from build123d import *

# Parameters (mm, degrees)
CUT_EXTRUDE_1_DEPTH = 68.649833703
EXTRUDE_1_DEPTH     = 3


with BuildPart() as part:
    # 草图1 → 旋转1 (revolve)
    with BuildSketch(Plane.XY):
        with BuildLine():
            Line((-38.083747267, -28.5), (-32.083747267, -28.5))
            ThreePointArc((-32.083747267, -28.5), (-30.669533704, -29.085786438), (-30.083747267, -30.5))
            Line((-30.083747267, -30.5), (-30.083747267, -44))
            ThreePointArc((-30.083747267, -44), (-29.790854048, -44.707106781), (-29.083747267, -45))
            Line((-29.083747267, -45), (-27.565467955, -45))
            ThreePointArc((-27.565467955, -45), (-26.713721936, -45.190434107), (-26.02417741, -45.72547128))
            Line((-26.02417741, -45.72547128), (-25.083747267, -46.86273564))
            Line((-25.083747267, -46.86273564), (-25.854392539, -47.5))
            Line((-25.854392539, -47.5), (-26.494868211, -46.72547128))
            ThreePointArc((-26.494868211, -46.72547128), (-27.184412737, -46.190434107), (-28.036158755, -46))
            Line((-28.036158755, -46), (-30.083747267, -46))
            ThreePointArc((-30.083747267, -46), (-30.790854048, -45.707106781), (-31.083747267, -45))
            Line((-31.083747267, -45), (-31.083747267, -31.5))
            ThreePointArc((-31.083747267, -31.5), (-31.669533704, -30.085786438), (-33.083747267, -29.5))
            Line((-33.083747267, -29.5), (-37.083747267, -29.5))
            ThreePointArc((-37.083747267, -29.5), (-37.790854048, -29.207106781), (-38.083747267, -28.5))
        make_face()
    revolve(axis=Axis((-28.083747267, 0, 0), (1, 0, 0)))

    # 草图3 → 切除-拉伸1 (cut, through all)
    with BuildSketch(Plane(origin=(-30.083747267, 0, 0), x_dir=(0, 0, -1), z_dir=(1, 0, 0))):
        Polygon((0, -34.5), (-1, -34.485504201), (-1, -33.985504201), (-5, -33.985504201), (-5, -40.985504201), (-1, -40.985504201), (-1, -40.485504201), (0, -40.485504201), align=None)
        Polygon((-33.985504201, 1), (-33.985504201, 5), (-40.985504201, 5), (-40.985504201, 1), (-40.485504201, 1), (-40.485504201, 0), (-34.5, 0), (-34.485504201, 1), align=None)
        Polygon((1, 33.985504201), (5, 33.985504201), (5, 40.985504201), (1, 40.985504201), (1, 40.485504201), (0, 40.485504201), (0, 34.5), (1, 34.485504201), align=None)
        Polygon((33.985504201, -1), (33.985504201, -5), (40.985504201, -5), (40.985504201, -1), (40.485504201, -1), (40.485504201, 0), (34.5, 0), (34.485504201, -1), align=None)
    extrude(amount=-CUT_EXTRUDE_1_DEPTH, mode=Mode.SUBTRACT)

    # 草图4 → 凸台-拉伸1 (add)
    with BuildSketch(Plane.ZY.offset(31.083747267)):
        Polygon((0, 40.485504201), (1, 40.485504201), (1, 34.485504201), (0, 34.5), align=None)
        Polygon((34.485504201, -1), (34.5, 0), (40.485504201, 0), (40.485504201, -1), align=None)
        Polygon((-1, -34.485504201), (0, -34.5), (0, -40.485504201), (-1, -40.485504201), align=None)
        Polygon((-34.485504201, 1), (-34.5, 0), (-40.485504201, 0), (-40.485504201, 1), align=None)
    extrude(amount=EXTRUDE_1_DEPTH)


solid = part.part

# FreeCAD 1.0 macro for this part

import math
import FreeCAD as App
import Part
import Sketcher

V = App.Vector
Q = App.Units.Quantity


def add_polygon(sketch, points):
    """Adds a closed chain of lines whose ends are joined by coincident constraints."""
    first, n = sketch.GeometryCount, len(points)
    for a, b in zip(points, points[1:] + points[:1]):
        sketch.addGeometry(Part.LineSegment(App.Vector(*a, 0), App.Vector(*b, 0)), False)
    for i in range(n):
        sketch.addConstraint(Sketcher.Constraint("Coincident", first + i, 2, first + (i + 1) % n, 1))

doc = App.newDocument("Part")
body = doc.addObject("PartDesign::Body", "Body")

sketch1 = body.newObject("Sketcher::SketchObject", "Sketch")
sketch1.AttachmentSupport = (doc.getObject("XY_Plane"), [""])
sketch1.MapMode = "FlatFace"
sketch1.addGeometry(Part.LineSegment(V(-32.083747, -28.5, 0), V(-38.083747, -28.5, 0)), False)
sketch1.addGeometry(Part.ArcOfCircle(Part.Circle(V(-37.083747, -28.5, 0), V(0, 0, 1), 1), math.radians(-180), math.radians(-90)), False)
sketch1.addGeometry(Part.LineSegment(V(-37.083747, -29.5, 0), V(-33.083747, -29.5, 0)), False)
sketch1.addGeometry(Part.ArcOfCircle(Part.Circle(V(-33.083747, -31.5, 0), V(0, 0, 1), 2), math.radians(0), math.radians(90)), False)
sketch1.addGeometry(Part.LineSegment(V(-31.083747, -31.5, 0), V(-31.083747, -45, 0)), False)
sketch1.addGeometry(Part.ArcOfCircle(Part.Circle(V(-30.083747, -45, 0), V(0, 0, 1), 1), math.radians(-180), math.radians(-90)), False)
sketch1.addGeometry(Part.LineSegment(V(-30.083747, -46, 0), V(-28.036159, -46, 0)), False)
sketch1.addGeometry(Part.ArcOfCircle(Part.Circle(V(-28.036159, -48, 0), V(0, 0, 1), 2), math.radians(39.588131), math.radians(90)), False)
sketch1.addGeometry(Part.LineSegment(V(-26.494868, -46.725471, 0), V(-25.854393, -47.5, 0)), False)
sketch1.addGeometry(Part.LineSegment(V(-25.854393, -47.5, 0), V(-25.083747, -46.862736, 0)), False)
sketch1.addGeometry(Part.LineSegment(V(-25.083747, -46.862736, 0), V(-26.024177, -45.725471, 0)), False)
sketch1.addGeometry(Part.ArcOfCircle(Part.Circle(V(-27.565468, -47, 0), V(0, 0, 1), 2), math.radians(39.588131), math.radians(90)), False)
sketch1.addGeometry(Part.LineSegment(V(-27.565468, -45, 0), V(-29.083747, -45, 0)), False)
sketch1.addGeometry(Part.ArcOfCircle(Part.Circle(V(-29.083747, -44, 0), V(0, 0, 1), 1), math.radians(-180), math.radians(-90)), False)
sketch1.addGeometry(Part.LineSegment(V(-30.083747, -44, 0), V(-30.083747, -30.5, 0)), False)
sketch1.addGeometry(Part.ArcOfCircle(Part.Circle(V(-32.083747, -30.5, 0), V(0, 0, 1), 2), math.radians(0), math.radians(90)), False)
sketch1.addConstraint(Sketcher.Constraint("Coincident", 0, 2, 1, 1))
sketch1.addConstraint(Sketcher.Constraint("Tangent", 1, 2, 2, 1))
sketch1.addConstraint(Sketcher.Constraint("Tangent", 2, 2, 3, 2))
sketch1.addConstraint(Sketcher.Constraint("Tangent", 3, 1, 4, 1))
sketch1.addConstraint(Sketcher.Constraint("Tangent", 4, 2, 5, 1))
sketch1.addConstraint(Sketcher.Constraint("Tangent", 5, 2, 6, 1))
sketch1.addConstraint(Sketcher.Constraint("Tangent", 6, 2, 7, 2))
sketch1.addConstraint(Sketcher.Constraint("Tangent", 7, 1, 8, 1))
sketch1.addConstraint(Sketcher.Constraint("Coincident", 8, 2, 9, 1))
sketch1.addConstraint(Sketcher.Constraint("Coincident", 9, 2, 10, 1))
sketch1.addConstraint(Sketcher.Constraint("Tangent", 10, 2, 11, 1))
sketch1.addConstraint(Sketcher.Constraint("Tangent", 11, 2, 12, 1))
sketch1.addConstraint(Sketcher.Constraint("Tangent", 12, 2, 13, 2))
sketch1.addConstraint(Sketcher.Constraint("Tangent", 13, 1, 14, 1))
sketch1.addConstraint(Sketcher.Constraint("Tangent", 14, 2, 15, 1))
sketch1.addConstraint(Sketcher.Constraint("Tangent", 15, 2, 0, 1))
sketch1.addConstraint(Sketcher.Constraint("Horizontal", 0))
sketch1.addConstraint(Sketcher.Constraint("Horizontal", 2))
sketch1.addConstraint(Sketcher.Constraint("Vertical", 4))
sketch1.addConstraint(Sketcher.Constraint("Horizontal", 6))
sketch1.addConstraint(Sketcher.Constraint("Horizontal", 12))
sketch1.addConstraint(Sketcher.Constraint("Vertical", 14))
sketch1.addConstraint(Sketcher.Constraint("Equal", 1, 5))
sketch1.addConstraint(Sketcher.Constraint("Equal", 3, 7))
sketch1.addConstraint(Sketcher.Constraint("Equal", 7, 11))
sketch1.addConstraint(Sketcher.Constraint("Equal", 5, 13))
sketch1.addConstraint(Sketcher.Constraint("Equal", 11, 15))
sketch1.addConstraint(Sketcher.Constraint("Perpendicular", 8, 9))
sketch1.addConstraint(Sketcher.Constraint("Perpendicular", 9, 10))
sketch1.addConstraint(Sketcher.Constraint("Horizontal", 1, 3, 0, 2))
sketch1.addConstraint(Sketcher.Constraint("Horizontal", 4, 2, 11, 2))
sketch1.addConstraint(Sketcher.Constraint("Vertical", 5, 2, 13, 1))
sketch1.addConstraint(Sketcher.Constraint("Radius", 1, Q("1 mm")))
sketch1.addConstraint(Sketcher.Constraint("Radius", 3, Q("2 mm")))
sketch1.addConstraint(Sketcher.Constraint("DistanceX", 0, 2, 0, 1, Q("6 mm")))
sketch1.addConstraint(Sketcher.Constraint("Distance", 9, Q("1 mm")))
sketch1.addConstraint(Sketcher.Constraint("DistanceY", 4, 2, 4, 1, Q("13.5 mm")))
sketch1.addConstraint(Sketcher.Constraint("DistanceY", 5, 3, -1, 1, Q("45 mm")))
sketch1.addConstraint(Sketcher.Constraint("DistanceY", 8, 2, -1, 1, Q("47.5 mm")))
sketch1.addConstraint(Sketcher.Constraint("DistanceX", 6, 1, 6, 2, Q("2.047589 mm")))
sketch1.addConstraint(Sketcher.Constraint("DistanceX", 12, 2, 12, 1, Q("1.518279 mm")))
sketch1.addConstraint(Sketcher.Constraint("DistanceX", 7, 3, -1, 1, Q("28.036159 mm")))
revolution = body.newObject("PartDesign::Revolution", "Revolution")
revolution.Profile = sketch1
revolution.ReferenceAxis = (sketch1, ["H_Axis"])
revolution.Angle = 360

sketch2 = body.newObject("Sketcher::SketchObject", "Sketch001")
sketch2.AttachmentSupport = (doc.getObject("YZ_Plane"), [""])
sketch2.MapMode = "FlatFace"
sketch2.AttachmentOffset = App.Placement(V(0, 0, -30.083747), App.Rotation())
add_polygon(sketch2, [(-34.5, 0), (-34.485504, 1), (-33.985504, 1), (-33.985504, 5), (-40.985504, 5), (-40.985504, 1), (-40.485504, 1), (-40.485504, 0)])
add_polygon(sketch2, [(1, 33.985504), (5, 33.985504), (5, 40.985504), (1, 40.985504), (1, 40.485504), (0, 40.485504), (0, 34.5), (1, 34.485504)])
add_polygon(sketch2, [(33.985504, -1), (33.985504, -5), (40.985504, -5), (40.985504, -1), (40.485504, -1), (40.485504, 0), (34.5, 0), (34.485504, -1)])
add_polygon(sketch2, [(-1, -33.985504), (-5, -33.985504), (-5, -40.985504), (-1, -40.985504), (-1, -40.485504), (0, -40.485504), (0, -34.5), (-1, -34.485504)])
sketch2.addConstraint(Sketcher.Constraint("Horizontal", 1))
sketch2.addConstraint(Sketcher.Constraint("Vertical", 2))
sketch2.addConstraint(Sketcher.Constraint("Horizontal", 3))
sketch2.addConstraint(Sketcher.Constraint("Vertical", 4))
sketch2.addConstraint(Sketcher.Constraint("Horizontal", 5))
sketch2.addConstraint(Sketcher.Constraint("Vertical", 6))
sketch2.addConstraint(Sketcher.Constraint("Horizontal", 7))
sketch2.addConstraint(Sketcher.Constraint("Horizontal", 8))
sketch2.addConstraint(Sketcher.Constraint("Vertical", 9))
sketch2.addConstraint(Sketcher.Constraint("Horizontal", 10))
sketch2.addConstraint(Sketcher.Constraint("Vertical", 11))
sketch2.addConstraint(Sketcher.Constraint("Horizontal", 12))
sketch2.addConstraint(Sketcher.Constraint("Vertical", 13))
sketch2.addConstraint(Sketcher.Constraint("Vertical", 15))
sketch2.addConstraint(Sketcher.Constraint("Vertical", 16))
sketch2.addConstraint(Sketcher.Constraint("Horizontal", 17))
sketch2.addConstraint(Sketcher.Constraint("Vertical", 18))
sketch2.addConstraint(Sketcher.Constraint("Horizontal", 19))
sketch2.addConstraint(Sketcher.Constraint("Vertical", 20))
sketch2.addConstraint(Sketcher.Constraint("Horizontal", 21))
sketch2.addConstraint(Sketcher.Constraint("Horizontal", 23))
sketch2.addConstraint(Sketcher.Constraint("Horizontal", 24))
sketch2.addConstraint(Sketcher.Constraint("Vertical", 25))
sketch2.addConstraint(Sketcher.Constraint("Horizontal", 26))
sketch2.addConstraint(Sketcher.Constraint("Vertical", 27))
sketch2.addConstraint(Sketcher.Constraint("Horizontal", 28))
sketch2.addConstraint(Sketcher.Constraint("Vertical", 29))
sketch2.addConstraint(Sketcher.Constraint("Vertical", 31))
sketch2.addConstraint(Sketcher.Constraint("Symmetric", 2, 2, 16, 2, -1, 1))
sketch2.addConstraint(Sketcher.Constraint("Symmetric", 4, 2, 18, 2, -1, 1))
sketch2.addConstraint(Sketcher.Constraint("Symmetric", 6, 2, 20, 2, -1, 1))
sketch2.addConstraint(Sketcher.Constraint("Symmetric", 0, 2, 22, 2, -1, 1))
sketch2.addConstraint(Sketcher.Constraint("Symmetric", 8, 2, 24, 2, -1, 1))
sketch2.addConstraint(Sketcher.Constraint("Symmetric", 10, 2, 26, 2, -1, 1))
sketch2.addConstraint(Sketcher.Constraint("Symmetric", 12, 2, 28, 2, -1, 1))
sketch2.addConstraint(Sketcher.Constraint("Symmetric", 14, 2, 30, 2, -1, 1))
sketch2.addConstraint(Sketcher.Constraint("Symmetric", 7, 2, 21, 2, -2))
sketch2.addConstraint(Sketcher.Constraint("Symmetric", 13, 2, 29, 2, -1))
sketch2.addConstraint(Sketcher.Constraint("Perpendicular", 0, 14))
sketch2.addConstraint(Sketcher.Constraint("Horizontal", 1, 2, 4, 2))
sketch2.addConstraint(Sketcher.Constraint("Vertical", 11, 2, 14, 2))
sketch2.addConstraint(Sketcher.Constraint("Equal", 1, 5))
sketch2.addConstraint(Sketcher.Constraint("Equal", 26, 2))
sketch2.addConstraint(Sketcher.Constraint("Equal", 28, 6))
sketch2.addConstraint(Sketcher.Constraint("Equal", 17, 9))
sketch2.addConstraint(Sketcher.Constraint("Equal", 23, 11))
sketch2.addConstraint(Sketcher.Constraint("Equal", 21, 13))
sketch2.addConstraint(Sketcher.Constraint("DistanceX", 3, 2, 3, 1, Q("7 mm")))
sketch2.addConstraint(Sketcher.Constraint("DistanceX", 8, 1, 8, 2, Q("4 mm")))
sketch2.addConstraint(Sketcher.Constraint("DistanceX", 12, 2, 12, 1, Q("1 mm")))
sketch2.addConstraint(Sketcher.Constraint("DistanceX", 1, 1, 1, 2, Q("0.5 mm")))
sketch2.addConstraint(Sketcher.Constraint("DistanceX", 7, 2, -1, 1, Q("34.5 mm")))
sketch2.addConstraint(Sketcher.Constraint("DistanceY", -1, 1, 13, 2, Q("34.5 mm")))
sketch2.addConstraint(Sketcher.Constraint("DistanceX", 7, 1, 7, 2, Q("5.985504 mm")))
pocket1 = body.newObject("PartDesign::Pocket", "Pocket")
pocket1.Profile = sketch2
pocket1.Type = "ThroughAll"

sketch3 = body.newObject("Sketcher::SketchObject", "Sketch002")
sketch3.AttachmentSupport = (doc.getObject("YZ_Plane"), [""])
sketch3.MapMode = "FlatFace"
sketch3.AttachmentOffset = App.Placement(V(0, 0, -31.083747), App.Rotation())
add_polygon(sketch3, [(40.485504, 1), (40.485504, 0), (34.5, 0), (34.485504, 1)])
add_polygon(sketch3, [(0, 34.5), (-1, 34.485504), (-1, 40.485504), (0, 40.485504)])
add_polygon(sketch3, [(-34.5, 0), (-34.485504, -1), (-40.485504, -1), (-40.485504, 0)])
add_polygon(sketch3, [(0, -34.5), (1, -34.485504), (1, -40.485504), (0, -40.485504)])
sketch3.addConstraint(Sketcher.Constraint("Vertical", 0))
sketch3.addConstraint(Sketcher.Constraint("Horizontal", 1))
sketch3.addConstraint(Sketcher.Constraint("Horizontal", 3))
sketch3.addConstraint(Sketcher.Constraint("Vertical", 5))
sketch3.addConstraint(Sketcher.Constraint("Horizontal", 6))
sketch3.addConstraint(Sketcher.Constraint("Vertical", 7))
sketch3.addConstraint(Sketcher.Constraint("Horizontal", 9))
sketch3.addConstraint(Sketcher.Constraint("Vertical", 10))
sketch3.addConstraint(Sketcher.Constraint("Horizontal", 11))
sketch3.addConstraint(Sketcher.Constraint("Vertical", 13))
sketch3.addConstraint(Sketcher.Constraint("Horizontal", 14))
sketch3.addConstraint(Sketcher.Constraint("Vertical", 15))
sketch3.addConstraint(Sketcher.Constraint("Symmetric", 2, 2, 8, 2, -1, 1))
sketch3.addConstraint(Sketcher.Constraint("Symmetric", 0, 2, 10, 2, -1, 1))
sketch3.addConstraint(Sketcher.Constraint("Symmetric", 4, 2, 12, 2, -1, 1))
sketch3.addConstraint(Sketcher.Constraint("Symmetric", 6, 2, 14, 2, -1, 1))
sketch3.addConstraint(Sketcher.Constraint("Symmetric", 1, 2, 11, 2, -2))
sketch3.addConstraint(Sketcher.Constraint("Symmetric", 7, 2, 15, 2, -1))
sketch3.addConstraint(Sketcher.Constraint("Perpendicular", 2, 4))
sketch3.addConstraint(Sketcher.Constraint("Equal", 14, 0))
sketch3.addConstraint(Sketcher.Constraint("Equal", 9, 5))
sketch3.addConstraint(Sketcher.Constraint("DistanceX", 3, 1, 3, 2, Q("6 mm")))
sketch3.addConstraint(Sketcher.Constraint("DistanceX", 6, 1, 6, 2, Q("1 mm")))
sketch3.addConstraint(Sketcher.Constraint("DistanceX", -1, 1, 1, 2, Q("34.5 mm")))
sketch3.addConstraint(Sketcher.Constraint("DistanceY", -1, 1, 7, 2, Q("34.5 mm")))
sketch3.addConstraint(Sketcher.Constraint("DistanceX", 1, 2, 1, 1, Q("5.985504 mm")))
pad1 = body.newObject("PartDesign::Pad", "Pad")
pad1.Profile = sketch3
pad1.Length = 3
pad1.Reversed = True

doc.recompute()
